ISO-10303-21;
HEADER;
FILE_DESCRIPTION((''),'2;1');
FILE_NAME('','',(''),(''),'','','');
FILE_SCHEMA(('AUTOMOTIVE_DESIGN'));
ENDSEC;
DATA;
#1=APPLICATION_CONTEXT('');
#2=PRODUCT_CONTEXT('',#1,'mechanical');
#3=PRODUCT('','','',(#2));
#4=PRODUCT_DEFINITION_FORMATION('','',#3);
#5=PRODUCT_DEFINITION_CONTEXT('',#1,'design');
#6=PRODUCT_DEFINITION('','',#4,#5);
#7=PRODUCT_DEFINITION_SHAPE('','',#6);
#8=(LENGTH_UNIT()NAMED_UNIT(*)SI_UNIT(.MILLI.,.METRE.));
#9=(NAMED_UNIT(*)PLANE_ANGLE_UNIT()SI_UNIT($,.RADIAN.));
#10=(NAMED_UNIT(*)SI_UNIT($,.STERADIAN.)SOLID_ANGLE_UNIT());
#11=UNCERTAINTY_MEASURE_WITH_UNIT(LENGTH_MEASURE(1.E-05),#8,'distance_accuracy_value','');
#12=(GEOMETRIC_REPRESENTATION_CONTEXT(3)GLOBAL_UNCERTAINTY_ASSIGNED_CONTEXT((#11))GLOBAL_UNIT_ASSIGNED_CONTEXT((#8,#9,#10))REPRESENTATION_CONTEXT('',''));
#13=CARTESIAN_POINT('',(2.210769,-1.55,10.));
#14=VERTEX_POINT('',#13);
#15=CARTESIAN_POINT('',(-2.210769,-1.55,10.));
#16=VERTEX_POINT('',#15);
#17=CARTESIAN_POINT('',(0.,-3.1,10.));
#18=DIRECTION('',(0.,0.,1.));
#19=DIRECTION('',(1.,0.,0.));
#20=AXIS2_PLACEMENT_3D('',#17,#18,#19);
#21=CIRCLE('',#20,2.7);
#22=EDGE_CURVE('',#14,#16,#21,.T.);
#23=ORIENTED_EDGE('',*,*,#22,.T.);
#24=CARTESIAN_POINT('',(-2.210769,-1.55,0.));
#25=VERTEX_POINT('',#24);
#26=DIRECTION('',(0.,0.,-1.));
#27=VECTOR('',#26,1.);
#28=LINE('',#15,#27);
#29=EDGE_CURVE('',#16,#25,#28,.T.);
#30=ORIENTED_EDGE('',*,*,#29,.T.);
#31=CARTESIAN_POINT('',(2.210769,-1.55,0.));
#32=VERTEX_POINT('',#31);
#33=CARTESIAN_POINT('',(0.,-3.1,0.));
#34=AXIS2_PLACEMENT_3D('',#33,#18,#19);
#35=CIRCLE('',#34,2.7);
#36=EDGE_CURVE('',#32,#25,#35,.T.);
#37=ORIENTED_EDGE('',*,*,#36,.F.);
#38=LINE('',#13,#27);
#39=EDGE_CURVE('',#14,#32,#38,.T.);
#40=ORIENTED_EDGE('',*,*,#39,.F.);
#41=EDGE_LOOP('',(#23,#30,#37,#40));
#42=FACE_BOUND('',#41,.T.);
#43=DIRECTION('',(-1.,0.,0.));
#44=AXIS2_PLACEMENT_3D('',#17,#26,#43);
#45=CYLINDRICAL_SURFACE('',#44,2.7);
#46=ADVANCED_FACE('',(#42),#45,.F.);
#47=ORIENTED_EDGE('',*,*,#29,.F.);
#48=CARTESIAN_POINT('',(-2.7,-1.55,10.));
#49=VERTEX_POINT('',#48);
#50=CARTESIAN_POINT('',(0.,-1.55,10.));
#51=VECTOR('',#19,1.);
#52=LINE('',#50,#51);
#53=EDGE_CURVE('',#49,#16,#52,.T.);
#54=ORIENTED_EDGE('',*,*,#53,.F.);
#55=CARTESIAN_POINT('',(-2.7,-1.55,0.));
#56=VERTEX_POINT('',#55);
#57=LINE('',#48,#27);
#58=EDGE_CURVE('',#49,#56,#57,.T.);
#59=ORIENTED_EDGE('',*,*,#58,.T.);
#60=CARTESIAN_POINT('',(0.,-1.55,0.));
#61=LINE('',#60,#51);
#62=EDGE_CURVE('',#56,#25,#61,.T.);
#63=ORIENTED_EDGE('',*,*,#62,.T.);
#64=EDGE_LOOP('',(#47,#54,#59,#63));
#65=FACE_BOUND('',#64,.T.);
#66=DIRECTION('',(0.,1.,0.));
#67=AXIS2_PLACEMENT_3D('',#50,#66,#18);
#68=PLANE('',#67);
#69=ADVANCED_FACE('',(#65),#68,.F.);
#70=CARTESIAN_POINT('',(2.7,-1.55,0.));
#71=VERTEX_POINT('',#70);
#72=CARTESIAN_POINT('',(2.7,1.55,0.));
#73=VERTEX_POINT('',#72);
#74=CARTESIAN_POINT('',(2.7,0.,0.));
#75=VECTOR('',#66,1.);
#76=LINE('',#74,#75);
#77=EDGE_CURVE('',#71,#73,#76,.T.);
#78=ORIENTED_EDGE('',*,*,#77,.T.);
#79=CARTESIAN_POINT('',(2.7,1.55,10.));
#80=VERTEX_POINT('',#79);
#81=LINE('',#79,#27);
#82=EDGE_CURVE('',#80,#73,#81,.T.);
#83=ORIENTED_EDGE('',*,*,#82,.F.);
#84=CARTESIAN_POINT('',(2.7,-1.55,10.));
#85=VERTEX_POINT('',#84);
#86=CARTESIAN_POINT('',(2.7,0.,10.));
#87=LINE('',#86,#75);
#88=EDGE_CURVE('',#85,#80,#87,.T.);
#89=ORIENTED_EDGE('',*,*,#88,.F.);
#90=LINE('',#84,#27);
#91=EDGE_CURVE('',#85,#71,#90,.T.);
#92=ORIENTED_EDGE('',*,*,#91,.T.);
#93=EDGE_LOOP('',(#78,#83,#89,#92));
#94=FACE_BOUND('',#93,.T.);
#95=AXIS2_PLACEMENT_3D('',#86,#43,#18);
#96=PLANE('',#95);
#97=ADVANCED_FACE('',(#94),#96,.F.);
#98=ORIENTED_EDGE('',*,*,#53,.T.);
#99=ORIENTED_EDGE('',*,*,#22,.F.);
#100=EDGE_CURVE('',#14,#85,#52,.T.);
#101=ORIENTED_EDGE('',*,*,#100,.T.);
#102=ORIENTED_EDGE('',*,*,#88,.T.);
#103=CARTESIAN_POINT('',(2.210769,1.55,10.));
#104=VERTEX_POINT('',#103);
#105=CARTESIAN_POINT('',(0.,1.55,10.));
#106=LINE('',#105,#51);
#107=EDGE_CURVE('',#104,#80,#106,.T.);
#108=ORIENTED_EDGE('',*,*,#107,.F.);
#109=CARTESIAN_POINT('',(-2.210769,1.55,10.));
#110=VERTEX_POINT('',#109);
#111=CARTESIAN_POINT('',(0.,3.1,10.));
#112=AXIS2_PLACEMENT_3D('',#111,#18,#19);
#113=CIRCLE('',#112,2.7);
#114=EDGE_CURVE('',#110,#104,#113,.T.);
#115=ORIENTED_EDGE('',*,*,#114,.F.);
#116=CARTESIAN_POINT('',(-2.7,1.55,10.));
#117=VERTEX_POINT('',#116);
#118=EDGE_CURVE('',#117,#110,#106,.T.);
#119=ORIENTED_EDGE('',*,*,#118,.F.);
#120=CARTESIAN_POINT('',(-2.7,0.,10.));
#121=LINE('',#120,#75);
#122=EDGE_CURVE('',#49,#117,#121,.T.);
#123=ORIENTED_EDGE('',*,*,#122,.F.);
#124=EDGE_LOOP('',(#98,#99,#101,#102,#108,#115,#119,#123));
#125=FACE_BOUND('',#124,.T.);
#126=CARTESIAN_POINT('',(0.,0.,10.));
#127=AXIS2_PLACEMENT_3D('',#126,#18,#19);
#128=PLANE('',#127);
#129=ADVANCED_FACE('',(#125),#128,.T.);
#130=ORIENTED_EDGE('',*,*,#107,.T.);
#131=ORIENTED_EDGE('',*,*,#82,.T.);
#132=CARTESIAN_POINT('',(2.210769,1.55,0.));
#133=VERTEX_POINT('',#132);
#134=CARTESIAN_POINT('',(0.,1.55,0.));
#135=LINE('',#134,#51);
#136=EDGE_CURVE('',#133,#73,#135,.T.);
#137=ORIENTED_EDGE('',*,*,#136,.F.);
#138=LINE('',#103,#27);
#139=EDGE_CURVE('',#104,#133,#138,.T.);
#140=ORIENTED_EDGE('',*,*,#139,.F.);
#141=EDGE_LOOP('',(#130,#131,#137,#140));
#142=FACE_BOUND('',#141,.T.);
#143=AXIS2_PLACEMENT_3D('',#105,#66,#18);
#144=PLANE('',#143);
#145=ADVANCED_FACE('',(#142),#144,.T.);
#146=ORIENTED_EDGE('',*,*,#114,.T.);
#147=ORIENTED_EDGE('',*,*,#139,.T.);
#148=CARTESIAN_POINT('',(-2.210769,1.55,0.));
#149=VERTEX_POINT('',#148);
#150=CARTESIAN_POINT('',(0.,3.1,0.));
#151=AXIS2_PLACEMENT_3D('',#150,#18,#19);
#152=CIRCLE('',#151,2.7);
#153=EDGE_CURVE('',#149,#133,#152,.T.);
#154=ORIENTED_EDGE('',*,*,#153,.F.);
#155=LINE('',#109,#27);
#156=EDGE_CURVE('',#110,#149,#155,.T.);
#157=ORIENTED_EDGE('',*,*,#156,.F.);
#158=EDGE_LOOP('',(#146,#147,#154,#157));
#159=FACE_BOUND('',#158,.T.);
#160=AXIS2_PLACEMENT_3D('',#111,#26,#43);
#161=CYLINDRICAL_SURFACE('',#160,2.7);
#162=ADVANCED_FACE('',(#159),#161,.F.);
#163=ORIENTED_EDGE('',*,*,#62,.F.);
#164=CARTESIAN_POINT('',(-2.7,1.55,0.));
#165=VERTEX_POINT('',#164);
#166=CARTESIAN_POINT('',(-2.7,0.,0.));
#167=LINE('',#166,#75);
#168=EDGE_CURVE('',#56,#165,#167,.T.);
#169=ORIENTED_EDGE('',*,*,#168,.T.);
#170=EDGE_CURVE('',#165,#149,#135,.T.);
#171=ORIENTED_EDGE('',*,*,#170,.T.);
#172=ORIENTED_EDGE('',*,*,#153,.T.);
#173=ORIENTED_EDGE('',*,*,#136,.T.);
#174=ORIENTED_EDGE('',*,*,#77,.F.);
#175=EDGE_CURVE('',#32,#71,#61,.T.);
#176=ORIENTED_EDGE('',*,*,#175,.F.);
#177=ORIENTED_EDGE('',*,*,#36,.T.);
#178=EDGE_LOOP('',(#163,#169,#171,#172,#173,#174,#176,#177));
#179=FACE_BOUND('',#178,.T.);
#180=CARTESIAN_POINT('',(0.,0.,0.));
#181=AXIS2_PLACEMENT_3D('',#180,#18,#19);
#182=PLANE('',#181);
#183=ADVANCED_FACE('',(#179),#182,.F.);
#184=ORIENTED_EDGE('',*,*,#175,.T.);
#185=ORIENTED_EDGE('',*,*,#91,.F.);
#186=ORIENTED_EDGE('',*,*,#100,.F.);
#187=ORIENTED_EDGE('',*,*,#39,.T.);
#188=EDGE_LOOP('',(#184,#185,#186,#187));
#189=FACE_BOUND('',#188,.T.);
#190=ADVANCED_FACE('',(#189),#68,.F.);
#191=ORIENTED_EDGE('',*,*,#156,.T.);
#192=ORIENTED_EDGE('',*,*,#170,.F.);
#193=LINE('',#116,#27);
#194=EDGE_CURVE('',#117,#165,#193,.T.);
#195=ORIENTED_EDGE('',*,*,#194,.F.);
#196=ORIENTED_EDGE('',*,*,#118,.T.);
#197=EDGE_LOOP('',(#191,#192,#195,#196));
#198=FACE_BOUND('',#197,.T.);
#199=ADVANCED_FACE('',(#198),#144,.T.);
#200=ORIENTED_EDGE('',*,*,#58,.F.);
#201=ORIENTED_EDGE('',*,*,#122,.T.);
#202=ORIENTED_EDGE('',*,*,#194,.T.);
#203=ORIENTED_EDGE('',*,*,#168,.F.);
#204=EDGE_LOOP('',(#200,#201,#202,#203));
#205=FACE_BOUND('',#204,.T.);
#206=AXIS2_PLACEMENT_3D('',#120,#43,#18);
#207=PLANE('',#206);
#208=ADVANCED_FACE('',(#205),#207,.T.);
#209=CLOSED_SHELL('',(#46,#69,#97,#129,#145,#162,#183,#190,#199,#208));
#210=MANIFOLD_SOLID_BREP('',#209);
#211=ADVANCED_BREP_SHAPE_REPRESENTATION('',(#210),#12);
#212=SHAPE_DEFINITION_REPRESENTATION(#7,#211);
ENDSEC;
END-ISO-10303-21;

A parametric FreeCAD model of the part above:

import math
import FreeCAD as App
import Part
import Sketcher
from FreeCAD import Vector

doc = App.newDocument("Part")
body = doc.addObject("PartDesign::Body", "Body")

sketch1 = doc.addObject("Sketcher::SketchObject", "Sketch")
body.addObject(sketch1)
sketch1.AttachmentSupport = (doc.XY_Plane, [""])
sketch1.MapMode = "FlatFace"
sketch1.addGeometry([
    Part.LineSegment(Vector(-2.7, 1.55, 0), Vector(-2.7, -1.55, 0)),
    Part.LineSegment(Vector(-2.7, -1.55, 0), Vector(-2.21, -1.55, 0)),
    Part.ArcOfCircle(Part.Circle(Vector(0, -3.1, 0), Vector(0, 0, 1), 2.7), math.radians(35), math.radians(145)),
    Part.LineSegment(Vector(2.21, -1.55, 0), Vector(2.7, -1.55, 0)),
    Part.LineSegment(Vector(2.7, -1.55, 0), Vector(2.7, 1.55, 0)),
    Part.LineSegment(Vector(2.7, 1.55, 0), Vector(2.21, 1.55, 0)),
    Part.ArcOfCircle(Part.Circle(Vector(0, 3.1, 0), Vector(0, 0, 1), 2.7), math.radians(-145), math.radians(-35)),
    Part.LineSegment(Vector(-2.21, 1.55, 0), Vector(-2.7, 1.55, 0)),
], False)
sketch1.addConstraint([
    Sketcher.Constraint("Coincident", 0, 2, 1, 1),
    Sketcher.Constraint("Coincident", 1, 2, 2, 2),
    Sketcher.Constraint("Coincident", 2, 1, 3, 1),
    Sketcher.Constraint("Coincident", 3, 2, 4, 1),
    Sketcher.Constraint("Coincident", 4, 2, 5, 1),
    Sketcher.Constraint("Coincident", 5, 2, 6, 2),
    Sketcher.Constraint("Coincident", 6, 1, 7, 1),
    Sketcher.Constraint("Coincident", 7, 2, 0, 1),
    Sketcher.Constraint("Vertical", 0),
    Sketcher.Constraint("Horizontal", 1),
    Sketcher.Constraint("Horizontal", 3),
    Sketcher.Constraint("Vertical", 4),
    Sketcher.Constraint("Horizontal", 5),
    Sketcher.Constraint("Horizontal", 7),
    Sketcher.Constraint("Equal", 2, 6),
    Sketcher.Constraint("Symmetric", 2, 3, 6, 3, -1, 1),
    Sketcher.Constraint("Symmetric", 0, 2, 4, 2, -1, 1),
    Sketcher.Constraint("Symmetric", 1, 2, 2, 1, -2),
    Sketcher.Constraint("Horizontal", 5, 2, 6, 1),
    Sketcher.Constraint("Radius", 2, 2.7),
    Sketcher.Constraint("DistanceY", 0, 2, 0, 1, 3.1),
    Sketcher.Constraint("DistanceY", 2, 3, -1, 1, 3.1),
    Sketcher.Constraint("DistanceX", 0, 2, -1, 1, 2.7),
])
pad1 = doc.addObject("PartDesign::Pad", "Pad")
body.addObject(pad1)
pad1.Profile = sketch1
pad1.Length = 10

doc.recompute()
